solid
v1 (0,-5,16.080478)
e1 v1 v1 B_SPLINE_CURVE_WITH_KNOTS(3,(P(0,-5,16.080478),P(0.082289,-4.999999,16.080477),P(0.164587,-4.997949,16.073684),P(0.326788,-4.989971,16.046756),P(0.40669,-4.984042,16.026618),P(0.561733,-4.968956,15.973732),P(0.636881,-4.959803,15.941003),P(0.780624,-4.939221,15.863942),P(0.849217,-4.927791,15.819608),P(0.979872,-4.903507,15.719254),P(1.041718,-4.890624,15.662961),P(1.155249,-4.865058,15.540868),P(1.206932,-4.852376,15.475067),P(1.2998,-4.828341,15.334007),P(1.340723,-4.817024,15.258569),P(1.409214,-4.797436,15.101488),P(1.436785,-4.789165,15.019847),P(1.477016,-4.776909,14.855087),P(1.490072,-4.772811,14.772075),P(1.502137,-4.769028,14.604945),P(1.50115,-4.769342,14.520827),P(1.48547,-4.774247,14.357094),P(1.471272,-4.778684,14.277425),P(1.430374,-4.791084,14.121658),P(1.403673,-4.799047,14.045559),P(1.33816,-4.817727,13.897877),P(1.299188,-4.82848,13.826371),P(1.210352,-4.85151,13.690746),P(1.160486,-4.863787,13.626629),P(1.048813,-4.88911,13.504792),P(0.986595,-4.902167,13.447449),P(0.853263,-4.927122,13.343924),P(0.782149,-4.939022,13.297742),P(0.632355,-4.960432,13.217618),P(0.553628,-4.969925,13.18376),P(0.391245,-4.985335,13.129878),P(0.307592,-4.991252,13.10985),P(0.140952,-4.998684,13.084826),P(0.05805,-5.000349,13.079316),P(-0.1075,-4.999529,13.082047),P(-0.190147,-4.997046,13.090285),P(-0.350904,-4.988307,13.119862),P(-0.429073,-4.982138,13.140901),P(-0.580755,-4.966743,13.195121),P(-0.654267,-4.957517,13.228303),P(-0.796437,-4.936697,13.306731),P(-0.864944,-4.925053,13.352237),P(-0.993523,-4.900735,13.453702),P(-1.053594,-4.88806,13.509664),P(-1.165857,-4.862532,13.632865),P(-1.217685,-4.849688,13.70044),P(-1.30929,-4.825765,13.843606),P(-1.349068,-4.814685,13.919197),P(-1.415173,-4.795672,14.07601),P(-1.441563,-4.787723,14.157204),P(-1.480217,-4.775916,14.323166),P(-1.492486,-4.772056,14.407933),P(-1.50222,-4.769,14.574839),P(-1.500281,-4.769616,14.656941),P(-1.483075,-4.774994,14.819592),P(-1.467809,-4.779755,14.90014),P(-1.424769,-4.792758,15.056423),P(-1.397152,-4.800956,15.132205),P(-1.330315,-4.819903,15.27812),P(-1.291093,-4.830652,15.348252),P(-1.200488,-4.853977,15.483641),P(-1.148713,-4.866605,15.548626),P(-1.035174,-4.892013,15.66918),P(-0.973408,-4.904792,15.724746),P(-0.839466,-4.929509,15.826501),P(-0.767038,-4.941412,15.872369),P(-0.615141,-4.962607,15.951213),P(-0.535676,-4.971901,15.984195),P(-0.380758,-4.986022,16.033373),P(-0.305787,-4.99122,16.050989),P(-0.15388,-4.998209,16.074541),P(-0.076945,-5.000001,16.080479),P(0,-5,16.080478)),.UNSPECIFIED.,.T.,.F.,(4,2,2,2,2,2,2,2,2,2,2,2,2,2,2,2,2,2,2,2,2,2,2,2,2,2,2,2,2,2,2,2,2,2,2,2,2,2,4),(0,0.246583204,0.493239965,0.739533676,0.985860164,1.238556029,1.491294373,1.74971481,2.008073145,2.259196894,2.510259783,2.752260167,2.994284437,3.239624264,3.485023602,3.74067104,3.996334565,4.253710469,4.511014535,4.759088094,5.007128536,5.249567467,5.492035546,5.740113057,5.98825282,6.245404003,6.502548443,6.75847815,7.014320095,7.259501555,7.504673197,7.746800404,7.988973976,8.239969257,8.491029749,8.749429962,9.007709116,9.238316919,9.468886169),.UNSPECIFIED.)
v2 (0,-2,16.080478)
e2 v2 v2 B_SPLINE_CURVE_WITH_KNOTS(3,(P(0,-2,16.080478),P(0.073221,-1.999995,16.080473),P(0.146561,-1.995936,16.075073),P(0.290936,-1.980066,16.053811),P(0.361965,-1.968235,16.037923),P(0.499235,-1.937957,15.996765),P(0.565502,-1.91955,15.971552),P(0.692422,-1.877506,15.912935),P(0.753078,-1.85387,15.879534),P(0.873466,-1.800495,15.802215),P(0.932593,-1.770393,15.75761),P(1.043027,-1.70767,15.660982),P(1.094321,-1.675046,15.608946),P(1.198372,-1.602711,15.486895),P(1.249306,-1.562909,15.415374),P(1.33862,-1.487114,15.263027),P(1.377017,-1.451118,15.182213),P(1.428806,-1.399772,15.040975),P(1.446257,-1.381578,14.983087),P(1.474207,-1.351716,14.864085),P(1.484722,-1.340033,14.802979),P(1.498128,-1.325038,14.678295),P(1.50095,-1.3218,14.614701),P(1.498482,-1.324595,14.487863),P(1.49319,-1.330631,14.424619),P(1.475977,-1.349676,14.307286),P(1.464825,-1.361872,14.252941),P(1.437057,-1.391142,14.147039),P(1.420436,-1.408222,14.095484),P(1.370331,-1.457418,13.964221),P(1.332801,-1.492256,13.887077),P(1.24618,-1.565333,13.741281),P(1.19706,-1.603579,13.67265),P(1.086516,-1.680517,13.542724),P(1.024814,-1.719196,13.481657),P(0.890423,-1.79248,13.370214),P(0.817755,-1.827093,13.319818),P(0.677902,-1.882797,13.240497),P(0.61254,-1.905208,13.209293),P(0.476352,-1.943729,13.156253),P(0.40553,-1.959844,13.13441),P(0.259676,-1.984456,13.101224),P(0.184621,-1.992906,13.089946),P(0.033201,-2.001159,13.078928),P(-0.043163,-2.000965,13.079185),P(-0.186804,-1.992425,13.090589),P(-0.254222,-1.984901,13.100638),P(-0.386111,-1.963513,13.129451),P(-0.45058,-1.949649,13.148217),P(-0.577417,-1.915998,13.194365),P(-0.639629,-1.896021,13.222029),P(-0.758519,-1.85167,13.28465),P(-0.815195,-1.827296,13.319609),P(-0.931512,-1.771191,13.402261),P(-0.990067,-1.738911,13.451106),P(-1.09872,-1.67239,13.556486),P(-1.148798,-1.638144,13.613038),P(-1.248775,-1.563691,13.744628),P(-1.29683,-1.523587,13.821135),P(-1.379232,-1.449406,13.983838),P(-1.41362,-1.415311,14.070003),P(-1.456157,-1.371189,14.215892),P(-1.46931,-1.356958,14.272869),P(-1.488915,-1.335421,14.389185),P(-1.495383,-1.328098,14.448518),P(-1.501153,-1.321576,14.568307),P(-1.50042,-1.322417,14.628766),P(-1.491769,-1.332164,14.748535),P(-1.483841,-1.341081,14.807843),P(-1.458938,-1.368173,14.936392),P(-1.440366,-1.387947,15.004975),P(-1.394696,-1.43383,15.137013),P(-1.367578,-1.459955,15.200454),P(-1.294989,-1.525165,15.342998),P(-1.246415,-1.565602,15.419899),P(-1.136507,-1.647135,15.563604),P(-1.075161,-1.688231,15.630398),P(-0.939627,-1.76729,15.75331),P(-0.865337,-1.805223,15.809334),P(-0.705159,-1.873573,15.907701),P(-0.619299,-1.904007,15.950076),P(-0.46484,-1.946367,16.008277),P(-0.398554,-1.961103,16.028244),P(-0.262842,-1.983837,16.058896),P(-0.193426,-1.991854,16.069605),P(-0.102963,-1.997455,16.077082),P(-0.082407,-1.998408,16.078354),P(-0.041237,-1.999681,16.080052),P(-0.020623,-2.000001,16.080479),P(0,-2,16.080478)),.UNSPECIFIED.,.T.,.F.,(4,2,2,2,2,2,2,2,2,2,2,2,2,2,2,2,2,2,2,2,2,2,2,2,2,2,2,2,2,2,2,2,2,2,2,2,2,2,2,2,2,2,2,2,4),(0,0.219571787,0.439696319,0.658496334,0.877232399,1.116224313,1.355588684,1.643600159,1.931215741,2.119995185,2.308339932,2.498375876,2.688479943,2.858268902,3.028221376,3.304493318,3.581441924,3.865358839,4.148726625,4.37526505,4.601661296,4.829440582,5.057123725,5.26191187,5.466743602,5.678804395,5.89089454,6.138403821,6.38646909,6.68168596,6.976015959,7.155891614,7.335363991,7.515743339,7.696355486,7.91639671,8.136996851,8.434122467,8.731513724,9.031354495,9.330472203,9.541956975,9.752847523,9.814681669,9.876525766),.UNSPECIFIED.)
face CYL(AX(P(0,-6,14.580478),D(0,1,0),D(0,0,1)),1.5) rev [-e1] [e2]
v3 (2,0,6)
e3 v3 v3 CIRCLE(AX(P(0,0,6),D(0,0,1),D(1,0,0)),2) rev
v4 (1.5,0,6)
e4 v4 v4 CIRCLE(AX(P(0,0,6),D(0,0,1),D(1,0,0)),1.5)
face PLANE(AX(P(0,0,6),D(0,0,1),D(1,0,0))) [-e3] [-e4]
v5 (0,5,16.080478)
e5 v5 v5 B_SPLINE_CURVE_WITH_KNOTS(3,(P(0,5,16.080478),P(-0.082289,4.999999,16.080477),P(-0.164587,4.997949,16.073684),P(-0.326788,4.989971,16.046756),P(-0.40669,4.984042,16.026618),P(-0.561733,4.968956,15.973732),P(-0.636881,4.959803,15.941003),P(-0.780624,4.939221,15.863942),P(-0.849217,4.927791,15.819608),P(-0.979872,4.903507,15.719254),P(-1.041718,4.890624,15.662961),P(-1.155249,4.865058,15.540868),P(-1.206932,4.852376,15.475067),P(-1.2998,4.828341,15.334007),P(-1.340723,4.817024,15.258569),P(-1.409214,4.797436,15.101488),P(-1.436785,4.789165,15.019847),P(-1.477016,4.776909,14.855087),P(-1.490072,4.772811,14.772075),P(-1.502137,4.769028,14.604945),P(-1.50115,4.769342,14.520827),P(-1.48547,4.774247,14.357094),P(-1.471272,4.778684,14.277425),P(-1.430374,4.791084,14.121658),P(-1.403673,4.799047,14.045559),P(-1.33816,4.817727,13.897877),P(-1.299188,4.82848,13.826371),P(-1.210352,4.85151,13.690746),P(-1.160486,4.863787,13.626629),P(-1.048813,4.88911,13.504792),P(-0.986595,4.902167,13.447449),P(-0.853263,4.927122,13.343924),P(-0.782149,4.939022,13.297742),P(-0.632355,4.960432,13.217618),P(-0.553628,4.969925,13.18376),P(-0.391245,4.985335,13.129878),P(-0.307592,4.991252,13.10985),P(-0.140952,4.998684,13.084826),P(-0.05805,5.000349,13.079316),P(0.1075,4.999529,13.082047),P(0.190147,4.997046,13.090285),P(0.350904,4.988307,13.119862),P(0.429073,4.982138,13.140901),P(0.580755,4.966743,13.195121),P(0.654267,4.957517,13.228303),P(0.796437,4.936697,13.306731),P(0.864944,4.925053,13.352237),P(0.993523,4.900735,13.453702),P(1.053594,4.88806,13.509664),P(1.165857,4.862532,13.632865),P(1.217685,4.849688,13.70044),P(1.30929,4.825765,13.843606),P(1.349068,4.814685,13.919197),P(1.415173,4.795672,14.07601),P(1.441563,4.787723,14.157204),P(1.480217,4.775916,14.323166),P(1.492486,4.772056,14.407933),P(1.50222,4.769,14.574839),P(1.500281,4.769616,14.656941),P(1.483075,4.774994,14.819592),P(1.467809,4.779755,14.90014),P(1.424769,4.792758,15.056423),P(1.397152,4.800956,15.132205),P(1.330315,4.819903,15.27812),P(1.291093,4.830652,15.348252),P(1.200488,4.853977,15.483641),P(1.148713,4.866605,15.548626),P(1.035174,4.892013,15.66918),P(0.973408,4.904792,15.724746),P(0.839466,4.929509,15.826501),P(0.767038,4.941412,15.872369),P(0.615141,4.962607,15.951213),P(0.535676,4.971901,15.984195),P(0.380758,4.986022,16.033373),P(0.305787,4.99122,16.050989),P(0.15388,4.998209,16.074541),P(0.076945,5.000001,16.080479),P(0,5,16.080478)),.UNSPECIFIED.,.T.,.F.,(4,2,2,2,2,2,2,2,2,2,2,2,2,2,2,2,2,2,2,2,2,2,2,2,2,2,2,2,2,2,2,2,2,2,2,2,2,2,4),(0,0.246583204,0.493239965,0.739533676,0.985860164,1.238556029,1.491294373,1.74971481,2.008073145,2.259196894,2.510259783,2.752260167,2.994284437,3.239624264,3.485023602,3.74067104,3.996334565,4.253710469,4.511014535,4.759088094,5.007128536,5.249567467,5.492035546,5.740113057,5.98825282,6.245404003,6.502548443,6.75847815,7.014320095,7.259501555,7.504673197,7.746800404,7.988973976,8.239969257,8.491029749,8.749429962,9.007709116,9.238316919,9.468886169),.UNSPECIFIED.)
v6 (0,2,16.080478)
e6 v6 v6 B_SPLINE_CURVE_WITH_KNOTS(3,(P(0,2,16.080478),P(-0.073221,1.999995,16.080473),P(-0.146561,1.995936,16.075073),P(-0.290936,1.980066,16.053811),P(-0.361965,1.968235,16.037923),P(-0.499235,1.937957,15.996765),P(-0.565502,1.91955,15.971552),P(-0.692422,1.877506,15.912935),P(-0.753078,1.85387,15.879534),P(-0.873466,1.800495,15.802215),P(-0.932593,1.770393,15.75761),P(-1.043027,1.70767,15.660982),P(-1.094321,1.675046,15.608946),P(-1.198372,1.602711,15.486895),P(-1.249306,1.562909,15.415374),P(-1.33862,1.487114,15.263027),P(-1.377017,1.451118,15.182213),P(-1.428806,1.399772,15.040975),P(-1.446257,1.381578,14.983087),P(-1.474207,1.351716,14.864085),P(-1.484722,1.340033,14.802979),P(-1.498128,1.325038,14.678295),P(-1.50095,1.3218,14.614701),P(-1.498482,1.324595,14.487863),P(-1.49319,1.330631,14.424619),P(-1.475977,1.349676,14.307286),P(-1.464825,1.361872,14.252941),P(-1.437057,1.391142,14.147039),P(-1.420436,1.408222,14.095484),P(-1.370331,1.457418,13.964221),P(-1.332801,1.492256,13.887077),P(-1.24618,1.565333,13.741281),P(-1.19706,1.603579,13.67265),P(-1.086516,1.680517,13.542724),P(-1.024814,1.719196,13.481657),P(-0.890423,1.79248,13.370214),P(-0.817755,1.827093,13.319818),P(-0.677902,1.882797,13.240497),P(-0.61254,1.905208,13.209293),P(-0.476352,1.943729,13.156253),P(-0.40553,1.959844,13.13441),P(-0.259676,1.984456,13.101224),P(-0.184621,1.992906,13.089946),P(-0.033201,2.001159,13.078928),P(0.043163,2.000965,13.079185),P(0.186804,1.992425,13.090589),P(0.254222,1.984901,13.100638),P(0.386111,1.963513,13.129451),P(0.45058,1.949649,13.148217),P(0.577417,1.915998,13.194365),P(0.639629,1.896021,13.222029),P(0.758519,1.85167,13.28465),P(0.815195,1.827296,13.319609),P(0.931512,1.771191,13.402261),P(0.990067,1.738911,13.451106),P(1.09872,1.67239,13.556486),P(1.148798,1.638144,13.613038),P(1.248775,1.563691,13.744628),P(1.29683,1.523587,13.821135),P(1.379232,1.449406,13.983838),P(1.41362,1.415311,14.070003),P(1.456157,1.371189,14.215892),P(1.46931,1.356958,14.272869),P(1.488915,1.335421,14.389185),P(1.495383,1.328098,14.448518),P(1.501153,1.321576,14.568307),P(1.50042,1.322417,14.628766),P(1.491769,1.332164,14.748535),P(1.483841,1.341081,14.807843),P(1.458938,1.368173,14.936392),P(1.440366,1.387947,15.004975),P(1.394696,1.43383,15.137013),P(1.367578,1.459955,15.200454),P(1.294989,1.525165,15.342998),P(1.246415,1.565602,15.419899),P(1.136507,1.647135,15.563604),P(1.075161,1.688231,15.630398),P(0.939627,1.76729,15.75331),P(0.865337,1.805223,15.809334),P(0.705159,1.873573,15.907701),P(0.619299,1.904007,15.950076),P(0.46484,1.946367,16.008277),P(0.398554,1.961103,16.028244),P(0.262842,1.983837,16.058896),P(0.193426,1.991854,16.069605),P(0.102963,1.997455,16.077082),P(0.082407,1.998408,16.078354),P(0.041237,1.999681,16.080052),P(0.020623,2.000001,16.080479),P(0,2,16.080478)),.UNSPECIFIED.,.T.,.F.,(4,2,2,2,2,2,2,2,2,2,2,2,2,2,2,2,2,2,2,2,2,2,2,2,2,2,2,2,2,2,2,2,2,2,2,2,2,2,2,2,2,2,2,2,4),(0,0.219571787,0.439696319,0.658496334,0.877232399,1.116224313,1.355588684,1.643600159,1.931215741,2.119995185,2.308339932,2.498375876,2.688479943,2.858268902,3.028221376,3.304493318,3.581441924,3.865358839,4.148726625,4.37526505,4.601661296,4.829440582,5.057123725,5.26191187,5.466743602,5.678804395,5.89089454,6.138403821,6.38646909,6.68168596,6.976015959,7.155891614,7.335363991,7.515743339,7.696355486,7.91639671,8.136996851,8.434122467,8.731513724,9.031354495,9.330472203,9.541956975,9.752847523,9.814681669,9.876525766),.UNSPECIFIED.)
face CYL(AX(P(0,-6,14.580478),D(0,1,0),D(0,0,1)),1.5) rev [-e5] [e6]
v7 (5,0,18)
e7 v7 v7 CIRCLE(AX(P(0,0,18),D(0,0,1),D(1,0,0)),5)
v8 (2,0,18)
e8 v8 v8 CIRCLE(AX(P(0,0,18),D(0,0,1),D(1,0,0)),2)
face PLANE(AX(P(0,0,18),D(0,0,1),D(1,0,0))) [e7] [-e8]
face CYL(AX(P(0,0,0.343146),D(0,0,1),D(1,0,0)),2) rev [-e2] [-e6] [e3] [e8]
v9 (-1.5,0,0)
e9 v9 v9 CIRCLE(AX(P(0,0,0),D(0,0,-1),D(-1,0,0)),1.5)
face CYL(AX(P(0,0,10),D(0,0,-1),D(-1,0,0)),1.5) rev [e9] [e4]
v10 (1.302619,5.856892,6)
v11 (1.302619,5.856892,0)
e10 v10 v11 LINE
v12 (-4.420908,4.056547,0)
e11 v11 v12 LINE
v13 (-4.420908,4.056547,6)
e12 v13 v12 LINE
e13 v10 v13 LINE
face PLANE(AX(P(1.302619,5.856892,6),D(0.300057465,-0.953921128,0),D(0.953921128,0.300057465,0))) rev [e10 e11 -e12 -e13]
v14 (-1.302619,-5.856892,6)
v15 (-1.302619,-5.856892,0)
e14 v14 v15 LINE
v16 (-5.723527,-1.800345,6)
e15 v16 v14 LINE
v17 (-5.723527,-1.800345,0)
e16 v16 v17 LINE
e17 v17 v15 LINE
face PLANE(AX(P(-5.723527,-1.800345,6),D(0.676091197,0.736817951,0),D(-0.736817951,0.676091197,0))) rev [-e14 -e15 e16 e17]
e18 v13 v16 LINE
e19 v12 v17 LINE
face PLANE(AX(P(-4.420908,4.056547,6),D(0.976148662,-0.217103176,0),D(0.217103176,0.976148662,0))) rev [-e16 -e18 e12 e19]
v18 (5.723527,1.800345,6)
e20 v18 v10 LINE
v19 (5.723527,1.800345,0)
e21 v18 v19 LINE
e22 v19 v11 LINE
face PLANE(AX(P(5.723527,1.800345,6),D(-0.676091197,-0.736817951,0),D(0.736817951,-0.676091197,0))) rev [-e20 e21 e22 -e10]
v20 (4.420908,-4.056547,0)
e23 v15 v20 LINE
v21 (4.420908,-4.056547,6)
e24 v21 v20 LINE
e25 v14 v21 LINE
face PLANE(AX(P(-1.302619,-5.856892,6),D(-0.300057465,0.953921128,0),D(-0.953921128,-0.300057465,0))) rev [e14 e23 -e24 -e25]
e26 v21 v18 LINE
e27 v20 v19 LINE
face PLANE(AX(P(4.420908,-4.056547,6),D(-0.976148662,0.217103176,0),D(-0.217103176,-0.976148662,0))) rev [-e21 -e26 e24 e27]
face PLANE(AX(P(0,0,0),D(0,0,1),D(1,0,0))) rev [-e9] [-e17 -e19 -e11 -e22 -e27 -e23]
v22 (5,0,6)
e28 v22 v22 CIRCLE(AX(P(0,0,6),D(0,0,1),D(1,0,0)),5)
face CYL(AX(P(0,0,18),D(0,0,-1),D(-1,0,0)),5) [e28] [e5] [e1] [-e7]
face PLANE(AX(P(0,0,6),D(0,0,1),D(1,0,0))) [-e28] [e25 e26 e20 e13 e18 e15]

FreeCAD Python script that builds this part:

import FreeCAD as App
import Part
import Sketcher
from FreeCAD import Vector

doc = App.newDocument("Part")
params = doc.addObject("Spreadsheet::Sheet", "Params")
for row, (alias, value) in enumerate([
    ("sketch1_length", "6 mm"),
    ("pad1_length", "6 mm"),
    ("sketch2_diameter", "10 mm"),
    ("pad2_length", "12 mm"),
    ("sketch3_diameter", "3 mm"),
    ("pocket1_length", "12 mm"),
    ("sketch4_diameter", "4 mm"),
    ("pocket2_length", "12 mm"),
    ("sketch5_diameter", "3 mm"),
    ("pocket3_length", "10 mm"),
], start=1):
    params.set(f"A{row}", alias)
    params.set(f"B{row}", "=" + value)
    params.setAlias(f"B{row}", alias)

body = doc.addObject("PartDesign::Body", "Body")

# Sketch on XY plane
sketch1 = body.newObject("Sketcher::SketchObject", "Sketch")
sketch1.AttachmentSupport = (doc.getObject("XY_Plane"), [""])
sketch1.MapMode = "FlatFace"
sketch1.addGeometry(Part.LineSegment(Vector(-4.420908, 4.056547, 0), Vector(-5.723527, -1.800345, 0)), False)
sketch1.addGeometry(Part.LineSegment(Vector(-5.723527, -1.800345, 0), Vector(-1.302619, -5.856892, 0)), False)
sketch1.addGeometry(Part.LineSegment(Vector(-1.302619, -5.856892, 0), Vector(4.420908, -4.056547, 0)), False)
sketch1.addGeometry(Part.LineSegment(Vector(4.420908, -4.056547, 0), Vector(5.723527, 1.800345, 0)), False)
sketch1.addGeometry(Part.LineSegment(Vector(5.723527, 1.800345, 0), Vector(1.302619, 5.856892, 0)), False)
sketch1.addGeometry(Part.LineSegment(Vector(1.302619, 5.856892, 0), Vector(-4.420908, 4.056547, 0)), False)
sketch1.addConstraint(Sketcher.Constraint("Coincident", 0, 2, 1, 1))
sketch1.addConstraint(Sketcher.Constraint("Coincident", 1, 2, 2, 1))
sketch1.addConstraint(Sketcher.Constraint("Coincident", 2, 2, 3, 1))
sketch1.addConstraint(Sketcher.Constraint("Coincident", 3, 2, 4, 1))
sketch1.addConstraint(Sketcher.Constraint("Coincident", 4, 2, 5, 1))
sketch1.addConstraint(Sketcher.Constraint("Coincident", 5, 2, 0, 1))
sketch1.addConstraint(Sketcher.Constraint("Symmetric", 0, 2, 3, 2, -1, 1))
sketch1.addConstraint(Sketcher.Constraint("Symmetric", 1, 2, 4, 2, -1, 1))
sketch1.addConstraint(Sketcher.Constraint("Symmetric", 2, 2, 5, 2, -1, 1))
sketch1.addConstraint(Sketcher.Constraint("Equal", 0, 1))
sketch1.addConstraint(Sketcher.Constraint("Equal", 1, 2))
sketch1.addConstraint(Sketcher.Constraint("Distance", 0, 6.0))
sketch1.addConstraint(Sketcher.Constraint("DistanceX", 1, 2, -1, 1, 1.302619))
sketch1.addConstraint(Sketcher.Constraint("DistanceY", 1, 2, -1, 1, 5.856892))
sketch1.addConstraint(Sketcher.Constraint("DistanceX", 2, 2, 3, 2, 1.302619))
sketch1.setExpression("Constraints[11]", "Params.sketch1_length")
pad1 = body.newObject("PartDesign::Pad", "Pad")
pad1.Profile = sketch1
pad1.setExpression("Length", "Params.pad1_length")

# Sketch on XY plane
sketch2 = body.newObject("Sketcher::SketchObject", "Sketch001")
sketch2.AttachmentSupport = (doc.getObject("XY_Plane"), [""])
sketch2.MapMode = "FlatFace"
sketch2.AttachmentOffset = App.Placement(Vector(0, 0, 6), App.Rotation())
sketch2.addGeometry(Part.Circle(Vector(0, 0, 0), Vector(0, 0, 1), 5), False)
sketch2.addConstraint(Sketcher.Constraint("Coincident", 0, 3, -1, 1))
sketch2.addConstraint(Sketcher.Constraint("Diameter", 0, 10.0))
sketch2.setExpression("Constraints[1]", "Params.sketch2_diameter")
pad2 = body.newObject("PartDesign::Pad", "Pad001")
pad2.Profile = sketch2
pad2.setExpression("Length", "Params.pad2_length")

# Sketch on XZ plane
sketch3 = body.newObject("Sketcher::SketchObject", "Sketch002")
sketch3.AttachmentSupport = (doc.getObject("XZ_Plane"), [""])
sketch3.MapMode = "FlatFace"
sketch3.addGeometry(Part.Circle(Vector(0, 14.580478, 0), Vector(0, 0, 1), 1.5), False)
sketch3.addConstraint(Sketcher.Constraint("PointOnObject", 0, 3, -2))
sketch3.addConstraint(Sketcher.Constraint("Diameter", 0, 3.0))
sketch3.addConstraint(Sketcher.Constraint("DistanceY", -1, 1, 0, 3, 14.580478))
sketch3.setExpression("Constraints[1]", "Params.sketch3_diameter")
pocket1 = body.newObject("PartDesign::Pocket", "Pocket")
pocket1.Profile = sketch3
pocket1.setExpression("Length", "Params.pocket1_length")
pocket1.Midplane = True

# Sketch on XY plane
sketch4 = body.newObject("Sketcher::SketchObject", "Sketch003")
sketch4.AttachmentSupport = (doc.getObject("XY_Plane"), [""])
sketch4.MapMode = "FlatFace"
sketch4.AttachmentOffset = App.Placement(Vector(0, 0, 18), App.Rotation())
sketch4.addGeometry(Part.Circle(Vector(0, 0, 0), Vector(0, 0, 1), 2), False)
sketch4.addConstraint(Sketcher.Constraint("Coincident", 0, 3, -1, 1))
sketch4.addConstraint(Sketcher.Constraint("Diameter", 0, 4.0))
sketch4.setExpression("Constraints[1]", "Params.sketch4_diameter")
pocket2 = body.newObject("PartDesign::Pocket", "Pocket001")
pocket2.Profile = sketch4
pocket2.setExpression("Length", "Params.pocket2_length")

# Sketch on XY plane
sketch5 = body.newObject("Sketcher::SketchObject", "Sketch004")
sketch5.AttachmentSupport = (doc.getObject("XY_Plane"), [""])
sketch5.MapMode = "FlatFace"
sketch5.addGeometry(Part.Circle(Vector(0, 0, 0), Vector(0, 0, 1), 1.5), False)
sketch5.addConstraint(Sketcher.Constraint("Coincident", 0, 3, -1, 1))
sketch5.addConstraint(Sketcher.Constraint("Diameter", 0, 3.0))
sketch5.setExpression("Constraints[1]", "Params.sketch5_diameter")
pocket3 = body.newObject("PartDesign::Pocket", "Pocket002")
pocket3.Profile = sketch5
pocket3.setExpression("Length", "Params.pocket3_length")
pocket3.Reversed = True

doc.recompute()
